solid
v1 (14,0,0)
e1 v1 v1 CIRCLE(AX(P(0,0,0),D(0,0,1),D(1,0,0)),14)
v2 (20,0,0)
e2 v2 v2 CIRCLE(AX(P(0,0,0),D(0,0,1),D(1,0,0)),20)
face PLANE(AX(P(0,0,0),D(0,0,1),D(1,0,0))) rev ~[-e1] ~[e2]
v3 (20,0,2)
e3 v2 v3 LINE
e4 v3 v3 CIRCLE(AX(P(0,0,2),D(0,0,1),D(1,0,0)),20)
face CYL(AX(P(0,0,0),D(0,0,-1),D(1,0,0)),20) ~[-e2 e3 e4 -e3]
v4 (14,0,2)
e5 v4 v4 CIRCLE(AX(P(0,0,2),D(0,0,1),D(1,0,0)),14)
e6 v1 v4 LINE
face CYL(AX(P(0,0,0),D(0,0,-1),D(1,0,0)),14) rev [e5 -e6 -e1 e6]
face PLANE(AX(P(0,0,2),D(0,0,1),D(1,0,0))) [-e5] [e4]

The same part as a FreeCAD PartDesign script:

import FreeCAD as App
import Part
import Sketcher

doc = App.newDocument("Part")
body = doc.addObject("PartDesign::Body", "Body")

# Sketch on XY plane
sketch1 = body.newObject("Sketcher::SketchObject", "Sketch")
sketch1.AttachmentSupport = (doc.getObject("XY_Plane"), [""])
sketch1.MapMode = "FlatFace"
sketch1.addGeometry(Part.Circle(App.Vector(0, 0, 0), App.Vector(0, 0, 1), 20), False)
sketch1.addGeometry(Part.Circle(App.Vector(0, 0, 0), App.Vector(0, 0, 1), 14), False)
sketch1.addConstraint(Sketcher.Constraint("Coincident", 0, 3, -1, 1))
sketch1.addConstraint(Sketcher.Constraint("Coincident", 1, 3, -1, 1))
sketch1.addConstraint(Sketcher.Constraint("Diameter", 0, 40.0))
sketch1.addConstraint(Sketcher.Constraint("Diameter", 1, 28.0))
pad1 = body.newObject("PartDesign::Pad", "Pad")
pad1.Profile = sketch1
pad1.Length = 2

doc.recompute()
